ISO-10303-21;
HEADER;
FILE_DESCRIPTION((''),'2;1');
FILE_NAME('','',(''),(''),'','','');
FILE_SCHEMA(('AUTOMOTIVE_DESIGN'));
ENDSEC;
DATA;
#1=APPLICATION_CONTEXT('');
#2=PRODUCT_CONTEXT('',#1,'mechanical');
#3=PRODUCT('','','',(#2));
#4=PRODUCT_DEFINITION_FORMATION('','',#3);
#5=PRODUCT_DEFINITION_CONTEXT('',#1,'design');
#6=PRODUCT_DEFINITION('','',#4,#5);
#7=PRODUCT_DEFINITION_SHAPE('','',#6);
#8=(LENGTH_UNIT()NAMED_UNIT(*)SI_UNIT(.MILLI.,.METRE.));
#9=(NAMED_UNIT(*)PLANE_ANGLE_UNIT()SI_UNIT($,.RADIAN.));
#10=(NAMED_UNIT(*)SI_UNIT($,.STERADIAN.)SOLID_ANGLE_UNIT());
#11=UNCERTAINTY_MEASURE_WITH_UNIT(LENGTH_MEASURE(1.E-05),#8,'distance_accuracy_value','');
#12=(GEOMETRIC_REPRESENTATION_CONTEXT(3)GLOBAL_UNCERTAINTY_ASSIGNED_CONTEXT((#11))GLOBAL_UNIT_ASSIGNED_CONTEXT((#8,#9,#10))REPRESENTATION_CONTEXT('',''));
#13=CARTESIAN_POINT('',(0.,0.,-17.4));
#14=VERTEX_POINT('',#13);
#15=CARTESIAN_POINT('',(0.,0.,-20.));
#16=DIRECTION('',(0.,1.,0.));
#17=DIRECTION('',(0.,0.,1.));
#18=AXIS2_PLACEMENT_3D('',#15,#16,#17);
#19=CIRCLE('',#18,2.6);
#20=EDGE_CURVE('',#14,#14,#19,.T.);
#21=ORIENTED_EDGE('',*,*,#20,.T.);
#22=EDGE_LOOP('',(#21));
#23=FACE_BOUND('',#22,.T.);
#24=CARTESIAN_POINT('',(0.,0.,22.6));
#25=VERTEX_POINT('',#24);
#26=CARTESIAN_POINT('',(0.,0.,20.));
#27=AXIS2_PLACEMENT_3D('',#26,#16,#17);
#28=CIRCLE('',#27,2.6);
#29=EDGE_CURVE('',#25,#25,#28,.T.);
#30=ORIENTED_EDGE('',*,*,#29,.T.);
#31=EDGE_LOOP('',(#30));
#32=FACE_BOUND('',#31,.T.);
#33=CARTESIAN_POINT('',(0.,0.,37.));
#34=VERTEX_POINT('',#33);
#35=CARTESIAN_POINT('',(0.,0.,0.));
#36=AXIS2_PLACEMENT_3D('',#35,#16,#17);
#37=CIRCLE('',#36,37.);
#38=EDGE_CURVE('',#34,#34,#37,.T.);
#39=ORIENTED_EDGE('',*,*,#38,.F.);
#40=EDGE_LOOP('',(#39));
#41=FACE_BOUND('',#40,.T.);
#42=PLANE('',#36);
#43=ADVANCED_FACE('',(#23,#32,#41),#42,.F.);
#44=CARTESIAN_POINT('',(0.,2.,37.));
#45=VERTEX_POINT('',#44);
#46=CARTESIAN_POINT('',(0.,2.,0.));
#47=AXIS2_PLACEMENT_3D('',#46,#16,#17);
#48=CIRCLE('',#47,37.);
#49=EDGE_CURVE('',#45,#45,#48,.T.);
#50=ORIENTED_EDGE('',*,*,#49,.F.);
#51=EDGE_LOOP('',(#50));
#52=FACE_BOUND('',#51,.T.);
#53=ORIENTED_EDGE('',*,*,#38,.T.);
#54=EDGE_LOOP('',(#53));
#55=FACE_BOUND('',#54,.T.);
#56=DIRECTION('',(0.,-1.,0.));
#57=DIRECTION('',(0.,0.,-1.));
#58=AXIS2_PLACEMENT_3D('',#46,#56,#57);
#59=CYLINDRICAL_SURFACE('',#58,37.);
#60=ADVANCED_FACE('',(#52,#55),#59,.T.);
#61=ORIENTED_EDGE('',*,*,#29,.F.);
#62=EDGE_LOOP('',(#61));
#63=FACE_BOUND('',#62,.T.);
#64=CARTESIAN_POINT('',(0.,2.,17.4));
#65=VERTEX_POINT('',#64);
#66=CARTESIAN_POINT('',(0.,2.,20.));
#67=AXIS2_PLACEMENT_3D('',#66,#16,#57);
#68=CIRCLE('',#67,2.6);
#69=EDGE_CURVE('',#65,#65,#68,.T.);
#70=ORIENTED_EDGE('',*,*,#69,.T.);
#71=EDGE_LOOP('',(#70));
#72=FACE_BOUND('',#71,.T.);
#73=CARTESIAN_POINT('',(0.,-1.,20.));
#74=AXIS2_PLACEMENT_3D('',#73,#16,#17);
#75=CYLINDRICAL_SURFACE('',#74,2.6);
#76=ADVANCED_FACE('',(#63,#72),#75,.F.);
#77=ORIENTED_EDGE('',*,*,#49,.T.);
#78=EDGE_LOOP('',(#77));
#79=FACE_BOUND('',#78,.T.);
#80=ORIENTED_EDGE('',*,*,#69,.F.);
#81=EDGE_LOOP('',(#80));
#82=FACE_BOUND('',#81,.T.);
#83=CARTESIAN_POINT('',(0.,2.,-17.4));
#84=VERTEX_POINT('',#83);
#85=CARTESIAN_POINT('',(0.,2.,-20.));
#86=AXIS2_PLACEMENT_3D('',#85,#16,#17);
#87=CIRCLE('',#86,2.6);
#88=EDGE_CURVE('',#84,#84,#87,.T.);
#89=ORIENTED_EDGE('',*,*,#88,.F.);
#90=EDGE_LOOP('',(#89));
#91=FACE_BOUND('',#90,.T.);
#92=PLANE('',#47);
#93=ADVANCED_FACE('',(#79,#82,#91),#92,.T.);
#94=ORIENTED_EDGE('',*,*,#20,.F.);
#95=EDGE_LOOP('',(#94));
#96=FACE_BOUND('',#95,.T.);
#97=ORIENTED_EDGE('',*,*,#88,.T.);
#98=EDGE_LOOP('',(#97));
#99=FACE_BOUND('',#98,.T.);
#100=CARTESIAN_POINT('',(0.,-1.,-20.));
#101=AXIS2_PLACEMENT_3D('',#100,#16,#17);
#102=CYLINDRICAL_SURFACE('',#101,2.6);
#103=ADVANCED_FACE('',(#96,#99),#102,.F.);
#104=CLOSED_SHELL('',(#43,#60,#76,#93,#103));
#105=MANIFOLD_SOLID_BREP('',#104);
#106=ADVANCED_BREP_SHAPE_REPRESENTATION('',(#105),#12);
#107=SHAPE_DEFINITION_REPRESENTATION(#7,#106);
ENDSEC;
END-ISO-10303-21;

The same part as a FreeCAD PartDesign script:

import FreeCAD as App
import Part
import Sketcher

V = App.Vector
Q = App.Units.Quantity

doc = App.newDocument("Part")
body = doc.addObject("PartDesign::Body", "Body")

# Sketch on XZ plane
sketch1 = body.newObject("Sketcher::SketchObject", "Sketch")
sketch1.AttachmentSupport = (doc.getObject("XZ_Plane"), [""])
sketch1.MapMode = "FlatFace"
sketch1.addGeometry(Part.Circle(V(0, 0, 0), V(0, 0, 1), 37), False)
sketch1.addConstraint([
    Sketcher.Constraint("Coincident", 0, 3, -1, 1),
    Sketcher.Constraint("Diameter", 0, Q("74 mm")),
])
pad1 = body.newObject("PartDesign::Pad", "Pad")
pad1.Profile = sketch1
pad1.Length = 2
pad1.Reversed = True

# Sketch on XZ plane
sketch2 = body.newObject("Sketcher::SketchObject", "Sketch001")
sketch2.AttachmentSupport = (doc.getObject("XZ_Plane"), [""])
sketch2.MapMode = "FlatFace"
sketch2.AttachmentOffset = App.Placement(V(0, 0, -2), App.Rotation())
sketch2.addGeometry([
    Part.Circle(V(0, -20, 0), V(0, 0, 1), 2.6),
    Part.Circle(V(0, 20, 0), V(0, 0, 1), 2.6),
], False)
sketch2.addConstraint([
    Sketcher.Constraint("Equal", 0, 1),
    Sketcher.Constraint("Symmetric", 0, 3, 1, 3, -1, 1),
    Sketcher.Constraint("PointOnObject", 0, 3, -2),
    Sketcher.Constraint("Diameter", 0, Q("5.2 mm")),
    Sketcher.Constraint("DistanceY", 0, 3, -1, 1, Q("20 mm")),
])
pocket1 = body.newObject("PartDesign::Pocket", "Pocket")
pocket1.Profile = sketch2
pocket1.Length = 3
pocket1.Reversed = True

doc.recompute()
